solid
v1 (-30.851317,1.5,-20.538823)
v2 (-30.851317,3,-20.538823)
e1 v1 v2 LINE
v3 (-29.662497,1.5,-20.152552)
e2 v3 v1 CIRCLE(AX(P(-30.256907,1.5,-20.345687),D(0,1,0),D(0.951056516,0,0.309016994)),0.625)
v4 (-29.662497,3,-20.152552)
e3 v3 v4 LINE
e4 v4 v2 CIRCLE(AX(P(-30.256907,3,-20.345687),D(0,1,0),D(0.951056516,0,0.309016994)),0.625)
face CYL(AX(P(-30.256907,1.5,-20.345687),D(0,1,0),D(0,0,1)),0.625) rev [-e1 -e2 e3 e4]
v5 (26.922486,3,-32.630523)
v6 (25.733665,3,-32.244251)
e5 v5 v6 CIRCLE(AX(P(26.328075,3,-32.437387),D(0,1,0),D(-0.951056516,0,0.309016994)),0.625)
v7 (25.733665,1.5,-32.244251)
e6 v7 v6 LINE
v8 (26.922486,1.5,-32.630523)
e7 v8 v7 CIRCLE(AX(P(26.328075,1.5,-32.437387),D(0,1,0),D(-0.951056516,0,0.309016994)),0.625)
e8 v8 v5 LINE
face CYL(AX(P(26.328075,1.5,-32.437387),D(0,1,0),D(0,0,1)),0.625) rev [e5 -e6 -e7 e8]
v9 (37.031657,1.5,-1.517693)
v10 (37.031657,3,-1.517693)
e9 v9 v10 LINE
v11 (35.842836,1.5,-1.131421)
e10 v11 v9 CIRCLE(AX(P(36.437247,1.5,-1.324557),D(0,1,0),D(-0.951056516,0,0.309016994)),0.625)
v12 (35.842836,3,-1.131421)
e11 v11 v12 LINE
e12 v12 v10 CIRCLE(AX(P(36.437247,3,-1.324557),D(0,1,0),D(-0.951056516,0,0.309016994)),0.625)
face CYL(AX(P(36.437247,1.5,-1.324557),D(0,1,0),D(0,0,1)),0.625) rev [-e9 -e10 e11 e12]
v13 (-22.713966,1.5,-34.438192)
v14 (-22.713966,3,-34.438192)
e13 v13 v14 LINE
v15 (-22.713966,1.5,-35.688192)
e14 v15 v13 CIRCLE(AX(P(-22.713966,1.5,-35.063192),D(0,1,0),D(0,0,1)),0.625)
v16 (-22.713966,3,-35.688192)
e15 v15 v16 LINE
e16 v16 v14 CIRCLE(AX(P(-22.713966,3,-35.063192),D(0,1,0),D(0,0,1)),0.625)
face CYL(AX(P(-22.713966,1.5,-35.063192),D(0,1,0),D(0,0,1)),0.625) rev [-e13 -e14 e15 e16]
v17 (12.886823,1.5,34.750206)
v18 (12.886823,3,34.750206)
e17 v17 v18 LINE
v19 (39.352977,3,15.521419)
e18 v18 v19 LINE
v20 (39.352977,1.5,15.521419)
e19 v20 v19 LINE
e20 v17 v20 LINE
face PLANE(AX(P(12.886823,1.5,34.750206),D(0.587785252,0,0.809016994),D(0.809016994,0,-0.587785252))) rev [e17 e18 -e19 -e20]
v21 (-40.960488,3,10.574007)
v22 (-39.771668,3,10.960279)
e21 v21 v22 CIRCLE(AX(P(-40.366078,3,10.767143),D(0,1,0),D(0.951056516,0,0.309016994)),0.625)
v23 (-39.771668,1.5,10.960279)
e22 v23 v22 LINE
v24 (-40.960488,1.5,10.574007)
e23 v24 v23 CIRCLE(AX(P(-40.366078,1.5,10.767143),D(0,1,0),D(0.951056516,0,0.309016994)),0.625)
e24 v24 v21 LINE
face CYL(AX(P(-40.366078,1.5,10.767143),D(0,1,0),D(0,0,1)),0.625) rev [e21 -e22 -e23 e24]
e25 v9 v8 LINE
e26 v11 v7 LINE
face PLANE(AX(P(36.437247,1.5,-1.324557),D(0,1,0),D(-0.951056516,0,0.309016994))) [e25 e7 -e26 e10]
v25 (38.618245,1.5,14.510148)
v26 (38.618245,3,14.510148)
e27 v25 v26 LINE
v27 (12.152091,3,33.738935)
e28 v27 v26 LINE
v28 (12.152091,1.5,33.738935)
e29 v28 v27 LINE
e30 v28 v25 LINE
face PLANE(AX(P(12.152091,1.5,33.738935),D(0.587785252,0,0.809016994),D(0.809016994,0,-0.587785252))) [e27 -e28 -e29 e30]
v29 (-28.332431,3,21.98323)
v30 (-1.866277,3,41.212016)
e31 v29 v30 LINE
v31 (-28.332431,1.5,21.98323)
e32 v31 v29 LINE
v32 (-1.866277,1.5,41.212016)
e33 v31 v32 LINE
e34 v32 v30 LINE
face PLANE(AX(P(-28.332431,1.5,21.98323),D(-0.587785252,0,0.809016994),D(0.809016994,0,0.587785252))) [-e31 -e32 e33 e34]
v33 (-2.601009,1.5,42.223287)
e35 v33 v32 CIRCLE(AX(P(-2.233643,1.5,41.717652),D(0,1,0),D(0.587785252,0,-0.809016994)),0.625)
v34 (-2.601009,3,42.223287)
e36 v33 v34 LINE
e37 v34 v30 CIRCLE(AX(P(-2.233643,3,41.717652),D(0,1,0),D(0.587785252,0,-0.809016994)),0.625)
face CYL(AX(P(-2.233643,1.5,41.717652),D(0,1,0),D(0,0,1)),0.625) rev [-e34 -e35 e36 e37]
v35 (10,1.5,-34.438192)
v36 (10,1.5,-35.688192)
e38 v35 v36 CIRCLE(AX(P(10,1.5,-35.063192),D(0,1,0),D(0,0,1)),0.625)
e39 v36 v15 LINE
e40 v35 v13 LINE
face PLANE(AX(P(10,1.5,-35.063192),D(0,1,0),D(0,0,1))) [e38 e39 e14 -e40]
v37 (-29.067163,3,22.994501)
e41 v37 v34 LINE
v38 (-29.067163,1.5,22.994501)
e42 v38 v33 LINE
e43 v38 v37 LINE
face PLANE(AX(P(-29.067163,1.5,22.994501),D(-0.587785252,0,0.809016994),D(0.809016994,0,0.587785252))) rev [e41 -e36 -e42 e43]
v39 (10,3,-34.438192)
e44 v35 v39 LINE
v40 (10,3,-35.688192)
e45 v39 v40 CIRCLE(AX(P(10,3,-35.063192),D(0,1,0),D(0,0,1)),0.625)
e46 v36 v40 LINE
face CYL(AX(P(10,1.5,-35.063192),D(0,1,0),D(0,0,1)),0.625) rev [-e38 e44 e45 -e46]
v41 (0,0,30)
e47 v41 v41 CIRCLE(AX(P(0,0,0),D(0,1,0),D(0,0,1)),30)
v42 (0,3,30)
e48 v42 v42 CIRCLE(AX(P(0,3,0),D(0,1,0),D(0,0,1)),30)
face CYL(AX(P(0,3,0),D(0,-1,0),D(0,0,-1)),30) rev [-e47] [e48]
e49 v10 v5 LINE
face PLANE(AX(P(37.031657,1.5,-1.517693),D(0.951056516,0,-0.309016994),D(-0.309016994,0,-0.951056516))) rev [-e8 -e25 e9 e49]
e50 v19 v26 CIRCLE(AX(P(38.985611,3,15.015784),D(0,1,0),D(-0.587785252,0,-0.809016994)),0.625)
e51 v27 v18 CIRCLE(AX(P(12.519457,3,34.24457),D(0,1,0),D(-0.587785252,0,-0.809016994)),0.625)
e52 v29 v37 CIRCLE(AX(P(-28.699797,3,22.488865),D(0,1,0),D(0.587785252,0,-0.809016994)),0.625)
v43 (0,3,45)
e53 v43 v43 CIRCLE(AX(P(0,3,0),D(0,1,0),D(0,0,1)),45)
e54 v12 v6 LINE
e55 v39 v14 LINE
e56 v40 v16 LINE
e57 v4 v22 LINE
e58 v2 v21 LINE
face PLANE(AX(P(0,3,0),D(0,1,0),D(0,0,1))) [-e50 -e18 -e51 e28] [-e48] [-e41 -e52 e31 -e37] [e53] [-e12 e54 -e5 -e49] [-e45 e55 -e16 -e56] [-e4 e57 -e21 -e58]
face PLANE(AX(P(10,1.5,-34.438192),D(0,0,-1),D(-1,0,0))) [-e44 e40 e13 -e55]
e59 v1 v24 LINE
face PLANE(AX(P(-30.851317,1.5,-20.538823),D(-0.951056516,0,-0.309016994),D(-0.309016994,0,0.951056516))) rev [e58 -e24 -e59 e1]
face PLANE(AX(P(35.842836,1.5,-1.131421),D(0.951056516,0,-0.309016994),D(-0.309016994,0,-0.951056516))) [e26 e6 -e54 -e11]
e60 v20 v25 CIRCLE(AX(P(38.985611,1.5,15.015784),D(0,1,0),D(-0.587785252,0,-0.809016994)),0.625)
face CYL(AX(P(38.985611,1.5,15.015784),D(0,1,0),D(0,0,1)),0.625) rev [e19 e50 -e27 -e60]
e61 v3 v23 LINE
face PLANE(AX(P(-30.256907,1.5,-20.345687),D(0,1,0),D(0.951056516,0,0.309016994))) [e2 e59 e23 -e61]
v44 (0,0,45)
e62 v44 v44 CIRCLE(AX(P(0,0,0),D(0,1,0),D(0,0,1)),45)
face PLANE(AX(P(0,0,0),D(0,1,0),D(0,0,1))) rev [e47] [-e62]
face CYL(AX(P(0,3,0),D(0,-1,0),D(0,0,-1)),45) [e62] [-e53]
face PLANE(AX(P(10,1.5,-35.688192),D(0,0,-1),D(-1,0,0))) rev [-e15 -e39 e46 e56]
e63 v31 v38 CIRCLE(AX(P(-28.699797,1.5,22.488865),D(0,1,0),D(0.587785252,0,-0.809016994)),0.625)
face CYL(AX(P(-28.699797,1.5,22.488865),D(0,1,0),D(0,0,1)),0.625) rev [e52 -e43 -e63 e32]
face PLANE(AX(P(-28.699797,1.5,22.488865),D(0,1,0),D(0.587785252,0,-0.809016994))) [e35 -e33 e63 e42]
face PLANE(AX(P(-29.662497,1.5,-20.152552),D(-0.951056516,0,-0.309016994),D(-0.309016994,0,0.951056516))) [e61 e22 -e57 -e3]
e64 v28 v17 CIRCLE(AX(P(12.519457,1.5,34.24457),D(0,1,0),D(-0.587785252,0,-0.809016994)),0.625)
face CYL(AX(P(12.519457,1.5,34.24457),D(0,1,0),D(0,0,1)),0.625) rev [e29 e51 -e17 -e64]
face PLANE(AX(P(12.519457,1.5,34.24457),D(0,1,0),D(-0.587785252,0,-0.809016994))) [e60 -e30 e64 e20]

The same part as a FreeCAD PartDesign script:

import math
import FreeCAD as App
import Part
import Sketcher

V = App.Vector

doc = App.newDocument("Part")
body = doc.addObject("PartDesign::Body", "Body")

# Sketch on XZ plane
sketch1 = doc.addObject("Sketcher::SketchObject", "Sketch")
body.addObject(sketch1)
sketch1.AttachmentSupport = (doc.XZ_Plane, [""])
sketch1.MapMode = "FlatFace"
sketch1.addGeometry(Part.Circle(V(0, 0, 0), V(0, 0, 1), 45), False)
sketch1.addGeometry(Part.Circle(V(0, 0, 0), V(0, 0, 1), 30), False)
sketch1.addConstraint(Sketcher.Constraint("Coincident", 0, 3, -1, 1))
sketch1.addConstraint(Sketcher.Constraint("Coincident", 1, 3, -1, 1))
sketch1.addConstraint(Sketcher.Constraint("Diameter", 0, 90.0))
sketch1.addConstraint(Sketcher.Constraint("Diameter", 1, 60.0))
pad1 = doc.addObject("PartDesign::Pad", "Pad")
body.addObject(pad1)
pad1.Profile = sketch1
pad1.Length = 3
pad1.Reversed = True

# Sketch on XZ plane
sketch2 = doc.addObject("Sketcher::SketchObject", "Sketch001")
body.addObject(sketch2)
sketch2.AttachmentSupport = (doc.XZ_Plane, [""])
sketch2.MapMode = "FlatFace"
sketch2.AttachmentOffset = App.Placement(V(0, 0, -3), App.Rotation())
sketch2.addGeometry(Part.LineSegment(V(-22.7, -34.4, 0), V(10, -34.4, 0)), False)
sketch2.addGeometry(Part.ArcOfCircle(Part.Circle(V(10, -35.1, 0), V(0, 0, 1), 0.6), math.radians(-90), math.radians(90)), False)
sketch2.addGeometry(Part.LineSegment(V(10, -35.7, 0), V(-22.7, -35.7, 0)), False)
sketch2.addGeometry(Part.ArcOfCircle(Part.Circle(V(-22.7, -35.1, 0), V(0, 0, 1), 0.6), math.radians(90), math.radians(270)), False)
sketch2.addConstraint(Sketcher.Constraint("Tangent", 0, 2, 1, 2))
sketch2.addConstraint(Sketcher.Constraint("Tangent", 1, 1, 2, 1))
sketch2.addConstraint(Sketcher.Constraint("Tangent", 2, 2, 3, 2))
sketch2.addConstraint(Sketcher.Constraint("Tangent", 3, 1, 0, 1))
sketch2.addConstraint(Sketcher.Constraint("Horizontal", 0))
sketch2.addConstraint(Sketcher.Constraint("Horizontal", 2))
sketch2.addConstraint(Sketcher.Constraint("DistanceX", -1, 1, 1, 3, 10.0))
sketch2.addConstraint(Sketcher.Constraint("Radius", 1, 0.625))
sketch2.addConstraint(Sketcher.Constraint("DistanceX", 0, 1, 0, 2, 32.713966))
sketch2.addConstraint(Sketcher.Constraint("DistanceY", 1, 3, -1, 1, 35.063192))
pocket1 = doc.addObject("PartDesign::Pocket", "Pocket")
body.addObject(pocket1)
pocket1.Profile = sketch2
pocket1.Length = 1.5
pocket1.Reversed = True
doc.recompute()

polarpattern = doc.addObject("PartDesign::PolarPattern", "PolarPattern")
body.addObject(polarpattern)
polarpattern.Originals = [pocket1]
polarpattern.Axis = (doc.Y_Axis, [""])
polarpattern.Angle = 360
polarpattern.Occurrences = 5
body.Tip = polarpattern

doc.recompute()
